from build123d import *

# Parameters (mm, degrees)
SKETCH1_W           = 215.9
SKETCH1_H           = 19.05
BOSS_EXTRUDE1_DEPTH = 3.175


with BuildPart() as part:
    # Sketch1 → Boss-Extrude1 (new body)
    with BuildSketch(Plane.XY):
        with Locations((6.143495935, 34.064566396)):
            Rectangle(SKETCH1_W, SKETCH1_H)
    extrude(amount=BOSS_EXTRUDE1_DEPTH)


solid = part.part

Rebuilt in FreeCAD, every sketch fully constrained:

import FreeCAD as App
import Part
import Sketcher
Q = App.Units.Quantity

doc = App.newDocument("Part")
params = doc.addObject("Spreadsheet::Sheet", "Params")
for row, (alias, value) in enumerate([
    ("sketch1_width", "8.5 in"),
    ("sketch1_height", "0.75 in"),
    ("pad1_length", "0.125 in"),
], start=1):
    params.set(f"A{row}", alias)
    params.set(f"B{row}", "=" + value)
    params.setAlias(f"B{row}", alias)

body = doc.addObject("PartDesign::Body", "Body")

sketch1 = body.newObject("Sketcher::SketchObject", "Sketch")
sketch1.AttachmentSupport = (doc.getObject("XY_Plane"), [""])
sketch1.MapMode = "FlatFace"
sketch1.addGeometry([
    Part.LineSegment(App.Vector(-102, 44, 0), App.Vector(-102, 25, 0)),
    Part.LineSegment(App.Vector(-102, 25, 0), App.Vector(114, 25, 0)),
    Part.LineSegment(App.Vector(114, 25, 0), App.Vector(114, 44, 0)),
    Part.LineSegment(App.Vector(114, 44, 0), App.Vector(-102, 44, 0)),
], False)
sketch1.addConstraint([
    Sketcher.Constraint("Coincident", 0, 2, 1, 1),
    Sketcher.Constraint("Coincident", 1, 2, 2, 1),
    Sketcher.Constraint("Coincident", 2, 2, 3, 1),
    Sketcher.Constraint("Coincident", 3, 2, 0, 1),
    Sketcher.Constraint("Vertical", 0),
    Sketcher.Constraint("Horizontal", 1),
    Sketcher.Constraint("Vertical", 2),
    Sketcher.Constraint("Horizontal", 3),
    Sketcher.Constraint("DistanceX", 1, 1, 1, 2, Q("8.5 in")),
    Sketcher.Constraint("DistanceY", 0, 2, 0, 1, Q("0.75 in")),
    Sketcher.Constraint("DistanceX", 0, 2, -1, 1, Q("101.806504 mm")),
    Sketcher.Constraint("DistanceY", -1, 1, 0, 2, Q("24.539566 mm")),
])
sketch1.setExpression("Constraints[8]", "Params.sketch1_width")
sketch1.setExpression("Constraints[9]", "Params.sketch1_height")
pad1 = body.newObject("PartDesign::Pad", "Pad")
pad1.Profile = sketch1
pad1.setExpression("Length", "Params.pad1_length")

doc.recompute()
